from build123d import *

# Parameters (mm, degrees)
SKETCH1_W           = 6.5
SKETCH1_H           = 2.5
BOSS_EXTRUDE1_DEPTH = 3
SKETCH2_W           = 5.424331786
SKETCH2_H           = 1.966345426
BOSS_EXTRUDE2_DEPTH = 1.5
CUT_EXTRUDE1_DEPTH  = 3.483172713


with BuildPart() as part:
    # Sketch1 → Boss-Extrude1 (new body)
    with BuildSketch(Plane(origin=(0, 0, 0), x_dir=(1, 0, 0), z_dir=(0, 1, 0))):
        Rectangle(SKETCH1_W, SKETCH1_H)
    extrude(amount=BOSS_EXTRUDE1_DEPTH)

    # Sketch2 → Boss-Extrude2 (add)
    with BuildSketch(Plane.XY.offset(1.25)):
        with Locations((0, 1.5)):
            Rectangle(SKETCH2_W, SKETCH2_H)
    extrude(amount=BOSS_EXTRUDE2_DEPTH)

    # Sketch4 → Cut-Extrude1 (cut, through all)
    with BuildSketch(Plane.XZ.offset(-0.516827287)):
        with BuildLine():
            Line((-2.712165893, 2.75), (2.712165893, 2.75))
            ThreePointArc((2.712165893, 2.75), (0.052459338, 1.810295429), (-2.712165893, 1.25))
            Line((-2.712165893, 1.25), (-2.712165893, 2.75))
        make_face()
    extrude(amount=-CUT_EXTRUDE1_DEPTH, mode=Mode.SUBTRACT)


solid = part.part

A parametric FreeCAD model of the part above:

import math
import FreeCAD as App
import Part
import Sketcher

V = App.Vector
Q = App.Units.Quantity


def add_polygon(sketch, points):
    """Adds a closed chain of lines whose ends are joined by coincident constraints."""
    first, n = sketch.GeometryCount, len(points)
    for a, b in zip(points, points[1:] + points[:1]):
        sketch.addGeometry(Part.LineSegment(App.Vector(*a, 0), App.Vector(*b, 0)), False)
    for i in range(n):
        sketch.addConstraint(Sketcher.Constraint("Coincident", first + i, 2, first + (i + 1) % n, 1))

doc = App.newDocument("Part")
params = doc.addObject("Spreadsheet::Sheet", "Params")
for row, (alias, value) in enumerate([
    ("sketch1_width", "6.5 mm"),
    ("sketch1_height", "2.5 mm"),
    ("pad1_length", "3 mm"),
    ("pad2_length", "1.5 mm"),
    ("sketch3_height", "1.5 mm"),
], start=1):
    params.set(f"A{row}", alias)
    params.set(f"B{row}", "=" + value)
    params.setAlias(f"B{row}", alias)

body = doc.addObject("PartDesign::Body", "Body")

sketch1 = body.newObject("Sketcher::SketchObject", "Sketch")
sketch1.AttachmentSupport = (doc.getObject("XZ_Plane"), [""])
sketch1.MapMode = "FlatFace"
add_polygon(sketch1, [(-3.2, -1.2), (-3.2, 1.2), (3.2, 1.2), (3.2, -1.2)])
sketch1.addConstraint([
    Sketcher.Constraint("Vertical", 0),
    Sketcher.Constraint("Horizontal", 1),
    Sketcher.Constraint("Vertical", 2),
    Sketcher.Constraint("Horizontal", 3),
    Sketcher.Constraint("Symmetric", 0, 2, 2, 2, -1, 1),
    Sketcher.Constraint("DistanceX", 1, 1, 1, 2, Q("6.5 mm")),
    Sketcher.Constraint("DistanceY", 0, 1, 0, 2, Q("2.5 mm")),
])
sketch1.setExpression("Constraints[9]", "Params.sketch1_width")
sketch1.setExpression("Constraints[10]", "Params.sketch1_height")
pad1 = body.newObject("PartDesign::Pad", "Pad")
pad1.Profile = sketch1
pad1.setExpression("Length", "Params.pad1_length")
pad1.Reversed = True

sketch2 = body.newObject("Sketcher::SketchObject", "Sketch001")
sketch2.AttachmentSupport = (doc.getObject("XY_Plane"), [""])
sketch2.MapMode = "FlatFace"
sketch2.AttachmentOffset = App.Placement(V(0, 0, 1.25), App.Rotation())
add_polygon(sketch2, [(-2.7, 2.5), (-2.7, 0.5), (2.7, 0.5), (2.7, 2.5)])
sketch2.addConstraint([
    Sketcher.Constraint("Vertical", 0),
    Sketcher.Constraint("Horizontal", 1),
    Sketcher.Constraint("Vertical", 2),
    Sketcher.Constraint("Horizontal", 3),
    Sketcher.Constraint("DistanceX", 1, 1, 1, 2, Q("5.424332 mm")),
    Sketcher.Constraint("DistanceY", 0, 2, 0, 1, Q("1.966345 mm")),
    Sketcher.Constraint("DistanceX", 0, 2, -1, 1, Q("2.712166 mm")),
    Sketcher.Constraint("DistanceY", -1, 1, 0, 2, Q("0.516827 mm")),
])
pad2 = body.newObject("PartDesign::Pad", "Pad001")
pad2.Profile = sketch2
pad2.setExpression("Length", "Params.pad2_length")

sketch3 = body.newObject("Sketcher::SketchObject", "Sketch002")
sketch3.AttachmentSupport = (doc.getObject("XZ_Plane"), [""])
sketch3.MapMode = "FlatFace"
sketch3.AttachmentOffset = App.Placement(V(0, 0, -0.516827), App.Rotation())
sketch3.addGeometry([
    Part.LineSegment(V(2.7, 2.8, 0), V(-2.7, 2.8, 0)),
    Part.LineSegment(V(-2.7, 2.8, 0), V(-2.7, 1.2, 0)),
    Part.ArcOfCircle(Part.Circle(V(-5.3, 21.3, 0), V(0, 0, 1), 20.2), math.radians(-82.54), math.radians(-66.54)),
], False)
sketch3.addConstraint([
    Sketcher.Constraint("Coincident", 0, 2, 1, 1),
    Sketcher.Constraint("Coincident", 1, 2, 2, 1),
    Sketcher.Constraint("Coincident", 2, 2, 0, 1),
    Sketcher.Constraint("Horizontal", 0),
    Sketcher.Constraint("Vertical", 1),
    Sketcher.Constraint("DistanceY", 1, 2, 1, 1, Q("1.5 mm")),
    Sketcher.Constraint("DistanceY", -1, 1, 0, 2, Q("2.75 mm")),
    Sketcher.Constraint("Radius", 2, Q("20.213672 mm")),
    Sketcher.Constraint("DistanceX", 0, 2, 0, 1, Q("5.424332 mm")),
    Sketcher.Constraint("DistanceX", 2, 3, -1, 1, Q("5.335066 mm")),
])
sketch3.setExpression("Constraints[5]", "Params.sketch3_height")
pocket1 = body.newObject("PartDesign::Pocket", "Pocket")
pocket1.Profile = sketch3
pocket1.Type = "ThroughAll"

doc.recompute()
